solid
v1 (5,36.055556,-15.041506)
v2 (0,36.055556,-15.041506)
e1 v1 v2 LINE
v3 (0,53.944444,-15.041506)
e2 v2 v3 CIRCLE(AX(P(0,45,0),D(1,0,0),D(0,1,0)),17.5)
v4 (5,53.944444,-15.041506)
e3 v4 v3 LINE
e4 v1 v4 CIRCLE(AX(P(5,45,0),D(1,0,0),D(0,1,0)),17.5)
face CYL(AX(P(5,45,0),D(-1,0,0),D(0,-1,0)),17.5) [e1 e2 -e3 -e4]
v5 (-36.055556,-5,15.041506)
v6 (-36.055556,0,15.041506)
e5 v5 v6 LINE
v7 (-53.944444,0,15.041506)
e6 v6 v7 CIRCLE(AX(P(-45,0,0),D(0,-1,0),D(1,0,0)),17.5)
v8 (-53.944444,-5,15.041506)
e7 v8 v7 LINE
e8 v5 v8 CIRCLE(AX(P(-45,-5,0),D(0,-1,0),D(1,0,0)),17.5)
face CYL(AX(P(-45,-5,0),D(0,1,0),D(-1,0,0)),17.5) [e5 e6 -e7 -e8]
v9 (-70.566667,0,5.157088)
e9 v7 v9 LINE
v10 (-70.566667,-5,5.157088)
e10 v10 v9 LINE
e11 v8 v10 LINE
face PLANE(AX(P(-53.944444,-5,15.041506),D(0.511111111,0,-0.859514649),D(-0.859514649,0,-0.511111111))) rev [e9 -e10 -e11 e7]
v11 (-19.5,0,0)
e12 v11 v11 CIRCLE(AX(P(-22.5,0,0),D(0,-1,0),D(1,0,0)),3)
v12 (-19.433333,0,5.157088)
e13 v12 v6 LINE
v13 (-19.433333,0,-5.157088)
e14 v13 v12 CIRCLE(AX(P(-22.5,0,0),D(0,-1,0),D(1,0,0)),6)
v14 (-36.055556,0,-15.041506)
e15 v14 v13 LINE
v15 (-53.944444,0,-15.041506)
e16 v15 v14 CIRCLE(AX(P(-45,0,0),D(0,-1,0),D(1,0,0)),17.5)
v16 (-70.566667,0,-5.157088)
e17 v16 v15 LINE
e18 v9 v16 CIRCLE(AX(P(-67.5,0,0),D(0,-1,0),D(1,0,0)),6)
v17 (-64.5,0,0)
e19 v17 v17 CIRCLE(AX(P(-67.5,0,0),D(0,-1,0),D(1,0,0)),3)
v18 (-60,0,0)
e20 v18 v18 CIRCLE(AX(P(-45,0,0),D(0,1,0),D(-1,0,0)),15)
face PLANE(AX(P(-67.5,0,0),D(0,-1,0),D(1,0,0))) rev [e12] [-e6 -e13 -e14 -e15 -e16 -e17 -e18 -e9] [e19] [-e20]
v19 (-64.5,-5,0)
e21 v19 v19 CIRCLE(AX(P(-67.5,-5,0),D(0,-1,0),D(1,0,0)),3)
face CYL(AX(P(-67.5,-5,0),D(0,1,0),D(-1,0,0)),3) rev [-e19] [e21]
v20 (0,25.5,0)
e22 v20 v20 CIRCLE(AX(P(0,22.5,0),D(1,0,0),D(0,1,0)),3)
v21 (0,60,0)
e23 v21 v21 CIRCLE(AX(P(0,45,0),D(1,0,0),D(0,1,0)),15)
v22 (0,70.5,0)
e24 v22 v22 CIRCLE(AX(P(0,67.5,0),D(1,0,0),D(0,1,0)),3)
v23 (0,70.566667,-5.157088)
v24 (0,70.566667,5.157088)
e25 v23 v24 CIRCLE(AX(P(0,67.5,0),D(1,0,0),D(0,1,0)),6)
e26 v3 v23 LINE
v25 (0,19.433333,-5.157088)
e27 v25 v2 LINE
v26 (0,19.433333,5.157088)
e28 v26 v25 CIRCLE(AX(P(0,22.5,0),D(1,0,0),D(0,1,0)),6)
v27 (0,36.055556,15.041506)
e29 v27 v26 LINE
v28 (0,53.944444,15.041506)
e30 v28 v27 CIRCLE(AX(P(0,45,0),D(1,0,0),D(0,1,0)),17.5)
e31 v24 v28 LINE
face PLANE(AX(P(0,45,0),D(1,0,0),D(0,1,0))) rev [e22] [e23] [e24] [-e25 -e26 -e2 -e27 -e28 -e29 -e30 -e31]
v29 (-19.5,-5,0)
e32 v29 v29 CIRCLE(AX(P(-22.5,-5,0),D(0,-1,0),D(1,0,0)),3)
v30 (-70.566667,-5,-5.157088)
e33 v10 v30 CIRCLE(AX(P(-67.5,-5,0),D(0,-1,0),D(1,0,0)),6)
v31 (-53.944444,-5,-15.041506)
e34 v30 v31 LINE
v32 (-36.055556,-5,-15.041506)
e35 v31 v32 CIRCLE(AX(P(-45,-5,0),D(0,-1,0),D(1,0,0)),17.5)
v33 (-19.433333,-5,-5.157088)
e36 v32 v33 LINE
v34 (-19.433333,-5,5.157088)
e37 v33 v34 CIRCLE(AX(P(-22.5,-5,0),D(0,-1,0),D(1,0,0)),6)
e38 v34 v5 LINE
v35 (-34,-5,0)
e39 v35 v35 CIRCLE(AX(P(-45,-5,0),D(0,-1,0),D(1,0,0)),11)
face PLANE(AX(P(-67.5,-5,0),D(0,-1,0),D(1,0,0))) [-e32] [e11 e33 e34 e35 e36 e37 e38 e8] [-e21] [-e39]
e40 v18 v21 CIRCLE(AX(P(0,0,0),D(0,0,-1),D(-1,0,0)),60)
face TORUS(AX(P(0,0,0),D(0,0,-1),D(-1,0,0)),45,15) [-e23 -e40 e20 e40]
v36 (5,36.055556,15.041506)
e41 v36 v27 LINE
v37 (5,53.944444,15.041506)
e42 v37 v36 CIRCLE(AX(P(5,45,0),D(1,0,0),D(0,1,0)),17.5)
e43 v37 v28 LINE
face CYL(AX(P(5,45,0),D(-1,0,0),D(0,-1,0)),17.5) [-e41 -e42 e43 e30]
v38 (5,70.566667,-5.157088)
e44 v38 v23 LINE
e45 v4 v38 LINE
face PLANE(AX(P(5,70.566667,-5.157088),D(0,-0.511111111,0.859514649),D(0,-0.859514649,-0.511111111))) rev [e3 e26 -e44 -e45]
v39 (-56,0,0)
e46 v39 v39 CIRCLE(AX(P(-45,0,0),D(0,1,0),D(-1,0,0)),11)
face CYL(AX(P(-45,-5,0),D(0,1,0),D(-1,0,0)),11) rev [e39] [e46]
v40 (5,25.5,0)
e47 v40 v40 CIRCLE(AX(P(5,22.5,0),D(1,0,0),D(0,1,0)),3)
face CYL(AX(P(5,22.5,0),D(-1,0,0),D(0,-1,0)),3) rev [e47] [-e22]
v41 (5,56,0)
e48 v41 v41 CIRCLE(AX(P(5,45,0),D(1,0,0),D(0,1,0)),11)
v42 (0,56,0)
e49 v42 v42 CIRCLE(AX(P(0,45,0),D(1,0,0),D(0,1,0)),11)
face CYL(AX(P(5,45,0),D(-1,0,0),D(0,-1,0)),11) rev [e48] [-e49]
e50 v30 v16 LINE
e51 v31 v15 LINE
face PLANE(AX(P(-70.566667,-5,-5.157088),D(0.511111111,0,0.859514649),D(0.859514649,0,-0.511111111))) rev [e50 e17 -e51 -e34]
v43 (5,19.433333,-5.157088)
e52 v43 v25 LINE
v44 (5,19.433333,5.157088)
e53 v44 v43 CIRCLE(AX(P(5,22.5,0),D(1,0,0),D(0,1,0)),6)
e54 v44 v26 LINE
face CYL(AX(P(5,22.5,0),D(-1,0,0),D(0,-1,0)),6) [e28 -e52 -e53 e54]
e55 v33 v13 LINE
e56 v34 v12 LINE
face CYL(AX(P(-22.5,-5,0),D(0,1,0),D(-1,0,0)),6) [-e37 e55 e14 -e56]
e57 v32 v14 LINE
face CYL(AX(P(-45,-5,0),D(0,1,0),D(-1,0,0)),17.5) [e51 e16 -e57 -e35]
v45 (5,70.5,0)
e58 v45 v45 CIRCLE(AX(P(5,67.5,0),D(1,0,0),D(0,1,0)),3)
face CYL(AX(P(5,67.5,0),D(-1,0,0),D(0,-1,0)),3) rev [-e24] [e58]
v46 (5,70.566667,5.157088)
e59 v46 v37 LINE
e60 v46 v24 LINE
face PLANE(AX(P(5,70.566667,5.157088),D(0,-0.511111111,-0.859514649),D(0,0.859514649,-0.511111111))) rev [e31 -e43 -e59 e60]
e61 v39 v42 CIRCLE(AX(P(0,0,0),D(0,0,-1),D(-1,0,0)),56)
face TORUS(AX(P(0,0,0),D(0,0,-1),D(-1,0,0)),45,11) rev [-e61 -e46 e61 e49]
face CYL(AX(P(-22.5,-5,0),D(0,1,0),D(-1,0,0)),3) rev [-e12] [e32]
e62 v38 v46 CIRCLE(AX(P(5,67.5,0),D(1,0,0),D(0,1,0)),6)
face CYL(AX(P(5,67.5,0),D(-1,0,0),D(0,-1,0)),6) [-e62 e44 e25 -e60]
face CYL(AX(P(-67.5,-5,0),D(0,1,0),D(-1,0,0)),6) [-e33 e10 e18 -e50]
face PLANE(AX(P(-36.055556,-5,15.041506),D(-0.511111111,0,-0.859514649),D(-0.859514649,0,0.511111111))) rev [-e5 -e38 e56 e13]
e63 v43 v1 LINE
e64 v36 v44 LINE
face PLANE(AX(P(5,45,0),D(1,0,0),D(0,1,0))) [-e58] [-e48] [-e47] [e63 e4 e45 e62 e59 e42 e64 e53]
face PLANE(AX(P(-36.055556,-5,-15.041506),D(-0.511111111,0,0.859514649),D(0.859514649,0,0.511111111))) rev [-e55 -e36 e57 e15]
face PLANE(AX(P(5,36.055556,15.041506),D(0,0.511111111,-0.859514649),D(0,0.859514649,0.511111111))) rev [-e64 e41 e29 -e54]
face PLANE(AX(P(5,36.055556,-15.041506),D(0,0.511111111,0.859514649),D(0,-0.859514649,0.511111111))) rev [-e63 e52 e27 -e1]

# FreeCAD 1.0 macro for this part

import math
import FreeCAD as App
import Part
import Sketcher
from FreeCAD import Vector

doc = App.newDocument("Part")
body = doc.addObject("PartDesign::Body", "Body")

# Sketch on XZ plane
sketch1 = doc.addObject("Sketcher::SketchObject", "Sketch")
body.addObject(sketch1)
sketch1.AttachmentSupport = (doc.XZ_Plane, [""])
sketch1.MapMode = "FlatFace"
sketch1.addGeometry(Part.Circle(Vector(-45, 0, 0), Vector(0, 0, 1), 15), False)
sketch1.addGeometry(Part.Circle(Vector(-45, 0, 0), Vector(0, 0, 1), 11), False)
sketch1.addConstraint(Sketcher.Constraint("Coincident", 1, 3, 0, 3))
sketch1.addConstraint(Sketcher.Constraint("PointOnObject", 0, 3, -1))
sketch1.addConstraint(Sketcher.Constraint("Diameter", 0, 30.0))
sketch1.addConstraint(Sketcher.Constraint("Diameter", 1, 22.0))
sketch1.addConstraint(Sketcher.Constraint("DistanceX", 0, 3, -1, 1, 45.0))

# Sketch on XY plane
sketch2 = doc.addObject("Sketcher::SketchObject", "Sketch001")
body.addObject(sketch2)
sketch2.AttachmentSupport = (doc.XY_Plane, [""])
sketch2.MapMode = "FlatFace"
sketch2.addGeometry(Part.ArcOfCircle(Part.Circle(Vector(0, 0, 0), Vector(0, 0, 1), 45), math.radians(90), math.radians(180)), False)
sketch2.addConstraint(Sketcher.Constraint("Coincident", 0, 3, -1, 1))
sketch2.addConstraint(Sketcher.Constraint("PointOnObject", 0, 1, -2))
sketch2.addConstraint(Sketcher.Constraint("PointOnObject", 0, 2, -1))
sketch2.addConstraint(Sketcher.Constraint("Radius", 0, 45.0))
doc.recompute()

additivepipe = doc.addObject("PartDesign::AdditivePipe", "AdditivePipe")
body.addObject(additivepipe)
additivepipe.Profile = sketch1
additivepipe.Spine = (sketch2, ["Edge1"])

# Sketch on YZ plane
sketch3 = doc.addObject("Sketcher::SketchObject", "Sketch002")
body.addObject(sketch3)
sketch3.AttachmentSupport = (doc.YZ_Plane, [""])
sketch3.MapMode = "FlatFace"
sketch3.addGeometry(Part.LineSegment(Vector(70.6, 5.2, 0), Vector(53.9, 15, 0)), False)
sketch3.addGeometry(Part.ArcOfCircle(Part.Circle(Vector(45, 0, 0), Vector(0, 0, 1), 17.5), math.radians(59), math.radians(121)), False)
sketch3.addGeometry(Part.LineSegment(Vector(36.1, 15, 0), Vector(19.4, 5.2, 0)), False)
sketch3.addGeometry(Part.ArcOfCircle(Part.Circle(Vector(22.5, 0, 0), Vector(0, 0, 1), 6), math.radians(121), math.radians(239)), False)
sketch3.addGeometry(Part.LineSegment(Vector(19.4, -5.2, 0), Vector(36.1, -15, 0)), False)
sketch3.addGeometry(Part.ArcOfCircle(Part.Circle(Vector(45, 0, 0), Vector(0, 0, 1), 17.5), math.radians(-121), math.radians(-59)), False)
sketch3.addGeometry(Part.LineSegment(Vector(53.9, -15, 0), Vector(70.6, -5.2, 0)), False)
sketch3.addGeometry(Part.ArcOfCircle(Part.Circle(Vector(67.5, 0, 0), Vector(0, 0, 1), 6), math.radians(-59), math.radians(59)), False)
sketch3.addGeometry(Part.Circle(Vector(22.5, 0, 0), Vector(0, 0, 1), 3), False)
sketch3.addGeometry(Part.Circle(Vector(45, 0, 0), Vector(0, 0, 1), 11), False)
sketch3.addGeometry(Part.Circle(Vector(67.5, 0, 0), Vector(0, 0, 1), 3), False)
sketch3.addConstraint(Sketcher.Constraint("Tangent", 0, 2, 1, 1))
sketch3.addConstraint(Sketcher.Constraint("Tangent", 1, 2, 2, 1))
sketch3.addConstraint(Sketcher.Constraint("Tangent", 2, 2, 3, 1))
sketch3.addConstraint(Sketcher.Constraint("Tangent", 3, 2, 4, 1))
sketch3.addConstraint(Sketcher.Constraint("Tangent", 4, 2, 5, 1))
sketch3.addConstraint(Sketcher.Constraint("Tangent", 5, 2, 6, 1))
sketch3.addConstraint(Sketcher.Constraint("Tangent", 6, 2, 7, 1))
sketch3.addConstraint(Sketcher.Constraint("Tangent", 7, 2, 0, 1))
sketch3.addConstraint(Sketcher.Constraint("Coincident", 5, 3, 1, 3))
sketch3.addConstraint(Sketcher.Constraint("Coincident", 8, 3, 3, 3))
sketch3.addConstraint(Sketcher.Constraint("Coincident", 9, 3, 1, 3))
sketch3.addConstraint(Sketcher.Constraint("Coincident", 10, 3, 7, 3))
sketch3.addConstraint(Sketcher.Constraint("Equal", 1, 5))
sketch3.addConstraint(Sketcher.Constraint("Equal", 3, 7))
sketch3.addConstraint(Sketcher.Constraint("Equal", 8, 10))
sketch3.addConstraint(Sketcher.Constraint("Symmetric", 2, 2, 3, 2, -1))
sketch3.addConstraint(Sketcher.Constraint("PointOnObject", 7, 3, -1))
sketch3.addConstraint(Sketcher.Constraint("Parallel", 0, 4))
sketch3.addConstraint(Sketcher.Constraint("Diameter", 8, 6.0))
sketch3.addConstraint(Sketcher.Constraint("Diameter", 9, 22.0))
sketch3.addConstraint(Sketcher.Constraint("Radius", 3, 6.0))
sketch3.addConstraint(Sketcher.Constraint("Radius", 1, 17.5))
sketch3.addConstraint(Sketcher.Constraint("DistanceX", -1, 1, 1, 3, 45.0))
sketch3.addConstraint(Sketcher.Constraint("DistanceX", 3, 3, 7, 3, 45.0))
pad1 = doc.addObject("PartDesign::Pad", "Pad")
body.addObject(pad1)
pad1.Profile = sketch3
pad1.Length = 5

# Sketch on XZ plane
sketch4 = doc.addObject("Sketcher::SketchObject", "Sketch003")
body.addObject(sketch4)
sketch4.AttachmentSupport = (doc.XZ_Plane, [""])
sketch4.MapMode = "FlatFace"
sketch4.addGeometry(Part.LineSegment(Vector(-53.9, 15, 0), Vector(-70.6, 5.2, 0)), False)
sketch4.addGeometry(Part.ArcOfCircle(Part.Circle(Vector(-67.5, 0, 0), Vector(0, 0, 1), 6), math.radians(121), math.radians(239)), False)
sketch4.addGeometry(Part.LineSegment(Vector(-70.6, -5.2, 0), Vector(-53.9, -15, 0)), False)
sketch4.addGeometry(Part.ArcOfCircle(Part.Circle(Vector(-45, 0, 0), Vector(0, 0, 1), 17.5), math.radians(-121), math.radians(-59)), False)
sketch4.addGeometry(Part.LineSegment(Vector(-36.1, -15, 0), Vector(-19.4, -5.2, 0)), False)
sketch4.addGeometry(Part.ArcOfCircle(Part.Circle(Vector(-22.5, 0, 0), Vector(0, 0, 1), 6), math.radians(-59), math.radians(59)), False)
sketch4.addGeometry(Part.LineSegment(Vector(-19.4, 5.2, 0), Vector(-36.1, 15, 0)), False)
sketch4.addGeometry(Part.ArcOfCircle(Part.Circle(Vector(-45, 0, 0), Vector(0, 0, 1), 17.5), math.radians(59), math.radians(121)), False)
sketch4.addGeometry(Part.Circle(Vector(-67.5, 0, 0), Vector(0, 0, 1), 3), False)
sketch4.addGeometry(Part.Circle(Vector(-45, 0, 0), Vector(0, 0, 1), 11), False)
sketch4.addGeometry(Part.Circle(Vector(-22.5, 0, 0), Vector(0, 0, 1), 3), False)
sketch4.addConstraint(Sketcher.Constraint("Tangent", 0, 2, 1, 1))
sketch4.addConstraint(Sketcher.Constraint("Tangent", 1, 2, 2, 1))
sketch4.addConstraint(Sketcher.Constraint("Tangent", 2, 2, 3, 1))
sketch4.addConstraint(Sketcher.Constraint("Tangent", 3, 2, 4, 1))
sketch4.addConstraint(Sketcher.Constraint("Tangent", 4, 2, 5, 1))
sketch4.addConstraint(Sketcher.Constraint("Tangent", 5, 2, 6, 1))
sketch4.addConstraint(Sketcher.Constraint("Tangent", 6, 2, 7, 1))
sketch4.addConstraint(Sketcher.Constraint("Tangent", 7, 2, 0, 1))
sketch4.addConstraint(Sketcher.Constraint("Coincident", 7, 3, 3, 3))
sketch4.addConstraint(Sketcher.Constraint("Coincident", 8, 3, 1, 3))
sketch4.addConstraint(Sketcher.Constraint("Coincident", 9, 3, 3, 3))
sketch4.addConstraint(Sketcher.Constraint("Coincident", 10, 3, 5, 3))
sketch4.addConstraint(Sketcher.Constraint("Equal", 1, 5))
sketch4.addConstraint(Sketcher.Constraint("Equal", 3, 7))
sketch4.addConstraint(Sketcher.Constraint("Equal", 8, 10))
sketch4.addConstraint(Sketcher.Constraint("Symmetric", 0, 2, 1, 2, -1))
sketch4.addConstraint(Sketcher.Constraint("PointOnObject", 5, 3, -1))
sketch4.addConstraint(Sketcher.Constraint("Parallel", 0, 4))
sketch4.addConstraint(Sketcher.Constraint("Diameter", 8, 6.0))
sketch4.addConstraint(Sketcher.Constraint("Diameter", 9, 22.0))
sketch4.addConstraint(Sketcher.Constraint("Radius", 1, 6.0))
sketch4.addConstraint(Sketcher.Constraint("Radius", 3, 17.5))
sketch4.addConstraint(Sketcher.Constraint("DistanceX", 3, 3, -1, 1, 45.0))
sketch4.addConstraint(Sketcher.Constraint("DistanceX", 1, 3, 5, 3, 45.0))
pad2 = doc.addObject("PartDesign::Pad", "Pad001")
body.addObject(pad2)
pad2.Profile = sketch4
pad2.Length = 5

doc.recompute()
